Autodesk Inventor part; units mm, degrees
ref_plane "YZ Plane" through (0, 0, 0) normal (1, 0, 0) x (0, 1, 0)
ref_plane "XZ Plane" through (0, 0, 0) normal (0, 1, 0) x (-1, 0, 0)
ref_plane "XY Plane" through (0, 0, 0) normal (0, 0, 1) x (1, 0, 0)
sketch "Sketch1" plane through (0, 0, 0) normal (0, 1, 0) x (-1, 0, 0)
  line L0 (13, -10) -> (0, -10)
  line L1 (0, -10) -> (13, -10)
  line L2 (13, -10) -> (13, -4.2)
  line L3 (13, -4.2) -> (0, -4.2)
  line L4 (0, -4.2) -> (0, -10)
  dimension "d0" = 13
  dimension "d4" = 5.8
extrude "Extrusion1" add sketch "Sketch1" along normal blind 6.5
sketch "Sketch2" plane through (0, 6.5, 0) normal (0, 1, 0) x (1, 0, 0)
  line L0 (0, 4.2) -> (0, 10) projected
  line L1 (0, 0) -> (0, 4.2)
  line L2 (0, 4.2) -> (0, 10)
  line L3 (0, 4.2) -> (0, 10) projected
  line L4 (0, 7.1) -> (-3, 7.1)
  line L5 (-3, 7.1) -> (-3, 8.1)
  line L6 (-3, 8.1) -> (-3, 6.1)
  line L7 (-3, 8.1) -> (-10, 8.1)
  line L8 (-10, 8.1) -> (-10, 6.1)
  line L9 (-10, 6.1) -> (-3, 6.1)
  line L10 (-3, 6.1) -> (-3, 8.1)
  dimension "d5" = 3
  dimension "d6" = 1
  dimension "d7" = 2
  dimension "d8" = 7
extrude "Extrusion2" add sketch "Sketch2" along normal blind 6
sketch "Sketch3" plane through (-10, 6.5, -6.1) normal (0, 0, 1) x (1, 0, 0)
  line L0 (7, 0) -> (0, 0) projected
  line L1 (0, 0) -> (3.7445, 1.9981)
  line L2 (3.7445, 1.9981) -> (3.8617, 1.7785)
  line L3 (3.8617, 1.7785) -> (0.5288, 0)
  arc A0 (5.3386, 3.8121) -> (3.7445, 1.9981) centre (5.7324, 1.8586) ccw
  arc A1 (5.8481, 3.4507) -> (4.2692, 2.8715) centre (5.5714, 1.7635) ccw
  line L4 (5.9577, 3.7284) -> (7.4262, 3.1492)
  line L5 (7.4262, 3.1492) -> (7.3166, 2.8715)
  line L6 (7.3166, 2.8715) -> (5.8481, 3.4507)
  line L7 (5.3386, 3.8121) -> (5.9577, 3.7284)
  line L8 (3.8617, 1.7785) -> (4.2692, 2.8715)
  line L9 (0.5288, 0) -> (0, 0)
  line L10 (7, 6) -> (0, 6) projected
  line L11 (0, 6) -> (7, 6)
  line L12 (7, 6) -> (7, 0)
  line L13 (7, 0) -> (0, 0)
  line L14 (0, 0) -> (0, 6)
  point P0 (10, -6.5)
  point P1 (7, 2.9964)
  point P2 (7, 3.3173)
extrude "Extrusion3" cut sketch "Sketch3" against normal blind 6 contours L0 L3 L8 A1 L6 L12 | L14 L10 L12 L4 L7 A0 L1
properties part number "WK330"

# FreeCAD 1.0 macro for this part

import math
import FreeCAD as App
import Part
import Sketcher
Q = App.Units.Quantity

doc = App.newDocument("Part")
params = doc.addObject("Spreadsheet::Sheet", "Params")
for row, (alias, value) in enumerate([
    ("sketch1_width", "13 mm"),
    ("sketch1_height", "5.8 mm"),
    ("pad1_length", "6.5 mm"),
    ("sketch2_width", "7 mm"),
    ("sketch2_height", "2 mm"),
    ("pad2_length", "6 mm"),
    ("sketch3_width", "7 mm"),
    ("sketch3_height", "6 mm"),
    ("pocket1_length", "6 mm"),
], start=1):
    params.set(f"A{row}", alias)
    params.set(f"B{row}", "=" + value)
    params.setAlias(f"B{row}", alias)

body = doc.addObject("PartDesign::Body", "Body")

# Sketch on XZ plane
sketch1 = body.newObject("Sketcher::SketchObject", "Sketch")
sketch1.AttachmentSupport = (doc.getObject("XZ_Plane"), [""])
sketch1.MapMode = "FlatFace"
sketch1.addGeometry(Part.LineSegment(App.Vector(0, -10, 0), App.Vector(-13, -10, 0)), False)
sketch1.addGeometry(Part.LineSegment(App.Vector(-13, -10, 0), App.Vector(-13, -4, 0)), False)
sketch1.addGeometry(Part.LineSegment(App.Vector(-13, -4, 0), App.Vector(0, -4, 0)), False)
sketch1.addGeometry(Part.LineSegment(App.Vector(0, -4, 0), App.Vector(0, -10, 0)), False)
sketch1.addConstraint(Sketcher.Constraint("Coincident", 0, 2, 1, 1))
sketch1.addConstraint(Sketcher.Constraint("Coincident", 1, 2, 2, 1))
sketch1.addConstraint(Sketcher.Constraint("Coincident", 2, 2, 3, 1))
sketch1.addConstraint(Sketcher.Constraint("Coincident", 3, 2, 0, 1))
sketch1.addConstraint(Sketcher.Constraint("Horizontal", 0))
sketch1.addConstraint(Sketcher.Constraint("Vertical", 1))
sketch1.addConstraint(Sketcher.Constraint("Horizontal", 2))
sketch1.addConstraint(Sketcher.Constraint("Vertical", 3))
sketch1.addConstraint(Sketcher.Constraint("PointOnObject", 2, 2, -2))
sketch1.addConstraint(Sketcher.Constraint("DistanceX", 0, 2, 0, 1, Q("13 mm")))
sketch1.addConstraint(Sketcher.Constraint("DistanceY", 1, 1, 1, 2, Q("5.8 mm")))
sketch1.addConstraint(Sketcher.Constraint("DistanceY", 0, 2, -1, 1, Q("10 mm")))
sketch1.setExpression("Constraints[9]", "Params.sketch1_width")
sketch1.setExpression("Constraints[10]", "Params.sketch1_height")
pad1 = body.newObject("PartDesign::Pad", "Pad")
pad1.Profile = sketch1
pad1.setExpression("Length", "Params.pad1_length")
pad1.Reversed = True

# Sketch on XZ plane
sketch2 = body.newObject("Sketcher::SketchObject", "Sketch001")
sketch2.AttachmentSupport = (doc.getObject("XZ_Plane"), [""])
sketch2.MapMode = "FlatFace"
sketch2.AttachmentOffset = App.Placement(App.Vector(0, 0, -6.5), App.Rotation())
sketch2.addGeometry(Part.LineSegment(App.Vector(-3, -6.1, 0), App.Vector(-3, -8.1, 0)), False)
sketch2.addGeometry(Part.LineSegment(App.Vector(-3, -8.1, 0), App.Vector(-10, -8.1, 0)), False)
sketch2.addGeometry(Part.LineSegment(App.Vector(-10, -8.1, 0), App.Vector(-10, -6.1, 0)), False)
sketch2.addGeometry(Part.LineSegment(App.Vector(-10, -6.1, 0), App.Vector(-3, -6.1, 0)), False)
sketch2.addConstraint(Sketcher.Constraint("Coincident", 0, 2, 1, 1))
sketch2.addConstraint(Sketcher.Constraint("Coincident", 1, 2, 2, 1))
sketch2.addConstraint(Sketcher.Constraint("Coincident", 2, 2, 3, 1))
sketch2.addConstraint(Sketcher.Constraint("Coincident", 3, 2, 0, 1))
sketch2.addConstraint(Sketcher.Constraint("Vertical", 0))
sketch2.addConstraint(Sketcher.Constraint("Horizontal", 1))
sketch2.addConstraint(Sketcher.Constraint("Vertical", 2))
sketch2.addConstraint(Sketcher.Constraint("Horizontal", 3))
sketch2.addConstraint(Sketcher.Constraint("DistanceX", 1, 2, 1, 1, Q("7 mm")))
sketch2.addConstraint(Sketcher.Constraint("DistanceY", 0, 2, 0, 1, Q("2 mm")))
sketch2.addConstraint(Sketcher.Constraint("DistanceX", 0, 2, -1, 1, Q("3 mm")))
sketch2.addConstraint(Sketcher.Constraint("DistanceY", 0, 2, -1, 1, Q("8.1 mm")))
sketch2.setExpression("Constraints[8]", "Params.sketch2_width")
sketch2.setExpression("Constraints[9]", "Params.sketch2_height")
pad2 = body.newObject("PartDesign::Pad", "Pad001")
pad2.Profile = sketch2
pad2.setExpression("Length", "Params.pad2_length")
pad2.Reversed = True

# Sketch on XY plane
sketch3 = body.newObject("Sketcher::SketchObject", "Sketch002")
sketch3.AttachmentSupport = (doc.getObject("XY_Plane"), [""])
sketch3.MapMode = "FlatFace"
sketch3.AttachmentOffset = App.Placement(App.Vector(0, 0, -6.1), App.Rotation())
sketch3.addGeometry(Part.LineSegment(App.Vector(-9.5, 6.5, 0), App.Vector(-3, 6.5, 0)), False)
sketch3.addGeometry(Part.LineSegment(App.Vector(-3, 6.5, 0), App.Vector(-3, 9.5, 0)), False)
sketch3.addGeometry(Part.LineSegment(App.Vector(-3, 9.5, 0), App.Vector(-4.2, 10, 0)), False)
sketch3.addGeometry(Part.ArcOfCircle(Part.Circle(App.Vector(-4.4, 8.3, 0), App.Vector(0, 0, 1), 1.7), math.radians(81), math.radians(140)), False)
sketch3.addGeometry(Part.LineSegment(App.Vector(-5.7, 9.4, 0), App.Vector(-6.1, 8.3, 0)), False)
sketch3.addGeometry(Part.LineSegment(App.Vector(-6.1, 8.3, 0), App.Vector(-9.5, 6.5, 0)), False)
sketch3.addGeometry(Part.LineSegment(App.Vector(-10, 12.5, 0), App.Vector(-10, 6.5, 0)), False)
sketch3.addGeometry(Part.LineSegment(App.Vector(-10, 6.5, 0), App.Vector(-6.3, 8.5, 0)), False)
sketch3.addGeometry(Part.ArcOfCircle(Part.Circle(App.Vector(-4.3, 8.4, 0), App.Vector(0, 0, 1), 2), math.radians(101), math.radians(176)), False)
sketch3.addGeometry(Part.LineSegment(App.Vector(-4.7, 10.3, 0), App.Vector(-4, 10.2, 0)), False)
sketch3.addGeometry(Part.LineSegment(App.Vector(-4, 10.2, 0), App.Vector(-3, 9.8, 0)), False)
sketch3.addGeometry(Part.LineSegment(App.Vector(-3, 9.8, 0), App.Vector(-3, 12.5, 0)), False)
sketch3.addGeometry(Part.LineSegment(App.Vector(-3, 12.5, 0), App.Vector(-10, 12.5, 0)), False)
sketch3.addConstraint(Sketcher.Constraint("Coincident", 0, 2, 1, 1))
sketch3.addConstraint(Sketcher.Constraint("Coincident", 1, 2, 2, 1))
sketch3.addConstraint(Sketcher.Constraint("Coincident", 2, 2, 3, 1))
sketch3.addConstraint(Sketcher.Constraint("Coincident", 3, 2, 4, 1))
sketch3.addConstraint(Sketcher.Constraint("Coincident", 4, 2, 5, 1))
sketch3.addConstraint(Sketcher.Constraint("Coincident", 5, 2, 0, 1))
sketch3.addConstraint(Sketcher.Constraint("Coincident", 6, 2, 7, 1))
sketch3.addConstraint(Sketcher.Constraint("Coincident", 7, 2, 8, 2))
sketch3.addConstraint(Sketcher.Constraint("Coincident", 8, 1, 9, 1))
sketch3.addConstraint(Sketcher.Constraint("Coincident", 9, 2, 10, 1))
sketch3.addConstraint(Sketcher.Constraint("Coincident", 10, 2, 11, 1))
sketch3.addConstraint(Sketcher.Constraint("Coincident", 11, 2, 12, 1))
sketch3.addConstraint(Sketcher.Constraint("Coincident", 12, 2, 6, 1))
sketch3.addConstraint(Sketcher.Constraint("Horizontal", 0))
sketch3.addConstraint(Sketcher.Constraint("Vertical", 1))
sketch3.addConstraint(Sketcher.Constraint("Vertical", 6))
sketch3.addConstraint(Sketcher.Constraint("Vertical", 11))
sketch3.addConstraint(Sketcher.Constraint("Horizontal", 12))
sketch3.addConstraint(Sketcher.Constraint("Parallel", 5, 7))
sketch3.addConstraint(Sketcher.Constraint("Parallel", 2, 10))
sketch3.addConstraint(Sketcher.Constraint("Horizontal", 5, 2, 6, 2))
sketch3.addConstraint(Sketcher.Constraint("Vertical", 1, 2, 10, 2))
sketch3.addConstraint(Sketcher.Constraint("DistanceX", 12, 2, 12, 1, Q("7 mm")))
sketch3.addConstraint(Sketcher.Constraint("DistanceY", 6, 2, 6, 1, Q("6 mm")))
sketch3.addConstraint(Sketcher.Constraint("DistanceX", 0, 2, -1, 1, Q("3 mm")))
sketch3.addConstraint(Sketcher.Constraint("Angle", 9, Q("-7.6995 deg")))
sketch3.addConstraint(Sketcher.Constraint("DistanceY", -1, 1, 0, 2, Q("6.5 mm")))
sketch3.addConstraint(Sketcher.Constraint("Radius", 3, Q("1.7097 mm")))
sketch3.addConstraint(Sketcher.Constraint("Radius", 8, Q("1.9928 mm")))
sketch3.addConstraint(Sketcher.Constraint("DistanceY", 4, 2, 8, 3, Q("0.08 mm")))
sketch3.addConstraint(Sketcher.Constraint("DistanceX", 0, 1, 0, 2, Q("6.4712 mm")))
sketch3.addConstraint(Sketcher.Constraint("DistanceY", 1, 1, 1, 2, Q("2.9964 mm")))
sketch3.addConstraint(Sketcher.Constraint("DistanceY", 11, 1, 11, 2, Q("2.6827 mm")))
sketch3.addConstraint(Sketcher.Constraint("DistanceX", 2, 2, -1, 1, Q("4.152 mm")))
sketch3.addConstraint(Sketcher.Constraint("DistanceY", -1, 1, 7, 2, Q("8.498 mm")))
sketch3.addConstraint(Sketcher.Constraint("DistanceY", -1, 1, 8, 1, Q("10.312 mm")))
sketch3.addConstraint(Sketcher.Constraint("DistanceX", 3, 3, 8, 3, Q("0.161 mm")))
sketch3.addConstraint(Sketcher.Constraint("DistanceY", 3, 3, 8, 3, Q("0.095 mm")))
sketch3.addConstraint(Sketcher.Constraint("DistanceY", 8, 3, 2, 2, Q("1.592 mm")))
sketch3.addConstraint(Sketcher.Constraint("DistanceY", 3, 3, 3, 2, Q("1.108 mm")))
sketch3.addConstraint(Sketcher.Constraint("DistanceY", 3, 2, 1, 2, Q("0.125 mm")))
sketch3.setExpression("Constraints[22]", "Params.sketch3_width")
sketch3.setExpression("Constraints[23]", "Params.sketch3_height")
pocket1 = body.newObject("PartDesign::Pocket", "Pocket")
pocket1.Profile = sketch3
pocket1.setExpression("Length", "Params.pocket1_length")

doc.recompute()
